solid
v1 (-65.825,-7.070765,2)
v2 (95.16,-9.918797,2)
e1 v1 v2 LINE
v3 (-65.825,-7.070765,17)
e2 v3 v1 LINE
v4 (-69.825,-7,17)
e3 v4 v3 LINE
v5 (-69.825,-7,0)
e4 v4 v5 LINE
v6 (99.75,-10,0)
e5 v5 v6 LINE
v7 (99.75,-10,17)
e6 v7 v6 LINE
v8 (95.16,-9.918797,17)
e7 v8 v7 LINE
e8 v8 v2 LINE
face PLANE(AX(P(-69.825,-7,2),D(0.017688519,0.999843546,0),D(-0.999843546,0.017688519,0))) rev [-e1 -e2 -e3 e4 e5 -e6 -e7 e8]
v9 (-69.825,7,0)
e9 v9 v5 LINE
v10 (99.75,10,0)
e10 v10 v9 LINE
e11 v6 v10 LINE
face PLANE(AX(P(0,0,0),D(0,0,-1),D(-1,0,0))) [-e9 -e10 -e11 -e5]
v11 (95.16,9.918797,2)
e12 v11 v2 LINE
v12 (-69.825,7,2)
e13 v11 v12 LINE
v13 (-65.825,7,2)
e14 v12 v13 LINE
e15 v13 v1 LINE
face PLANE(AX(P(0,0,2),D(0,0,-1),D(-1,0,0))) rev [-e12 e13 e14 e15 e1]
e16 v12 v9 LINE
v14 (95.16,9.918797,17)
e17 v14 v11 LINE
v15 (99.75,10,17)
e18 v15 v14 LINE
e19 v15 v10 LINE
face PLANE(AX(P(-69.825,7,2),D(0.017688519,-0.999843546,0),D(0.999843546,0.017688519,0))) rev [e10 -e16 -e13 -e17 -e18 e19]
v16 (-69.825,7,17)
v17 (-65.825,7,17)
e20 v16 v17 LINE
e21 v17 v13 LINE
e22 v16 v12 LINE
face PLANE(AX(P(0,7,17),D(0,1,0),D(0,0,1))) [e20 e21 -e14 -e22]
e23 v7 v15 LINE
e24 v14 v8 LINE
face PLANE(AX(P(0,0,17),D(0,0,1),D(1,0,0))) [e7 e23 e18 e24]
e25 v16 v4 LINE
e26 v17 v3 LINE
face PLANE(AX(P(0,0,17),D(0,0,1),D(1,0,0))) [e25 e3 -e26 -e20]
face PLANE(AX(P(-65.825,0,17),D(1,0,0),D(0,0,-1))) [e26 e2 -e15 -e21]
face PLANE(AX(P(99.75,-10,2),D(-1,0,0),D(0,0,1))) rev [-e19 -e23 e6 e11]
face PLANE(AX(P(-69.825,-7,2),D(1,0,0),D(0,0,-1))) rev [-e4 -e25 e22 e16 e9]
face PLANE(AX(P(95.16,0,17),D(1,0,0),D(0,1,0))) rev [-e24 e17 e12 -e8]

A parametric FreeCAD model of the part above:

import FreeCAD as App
import Part
import Sketcher
from FreeCAD import Vector


def add_polygon(sketch, points):
    """Adds a closed chain of lines whose ends are joined by coincident constraints."""
    first, n = sketch.GeometryCount, len(points)
    for a, b in zip(points, points[1:] + points[:1]):
        sketch.addGeometry(Part.LineSegment(App.Vector(*a, 0), App.Vector(*b, 0)), False)
    for i in range(n):
        sketch.addConstraint(Sketcher.Constraint("Coincident", first + i, 2, first + (i + 1) % n, 1))

doc = App.newDocument("Part")
params = doc.addObject("Spreadsheet::Sheet", "Params")
for row, (alias, value) in enumerate([
    ("sketch1_height", "20 mm"),
    ("sketch1_height2", "14 mm"),
    ("pad1_length", "2 mm"),
    ("sketch2_width", "4 mm"),
    ("sketch2_height", "14 mm"),
    ("sketch2_height2", "20 mm"),
    ("pad2_length", "15 mm"),
], start=1):
    params.set(f"A{row}", alias)
    params.set(f"B{row}", "=" + value)
    params.setAlias(f"B{row}", alias)

body = doc.addObject("PartDesign::Body", "Body")

# Sketch on XY plane
sketch1 = doc.addObject("Sketcher::SketchObject", "Sketch")
body.addObject(sketch1)
sketch1.AttachmentSupport = (doc.XY_Plane, [""])
sketch1.MapMode = "FlatFace"
add_polygon(sketch1, [(-70, -7), (100, -10), (100, 10), (-70, 7)])  # lines 0-3
sketch1.addConstraint([
    Sketcher.Constraint("Vertical", 1),
    Sketcher.Constraint("Vertical", 3),
    Sketcher.Constraint("Equal", 0, 2),
    Sketcher.Constraint("DistanceY", 1, 1, 1, 2, 20.0),
    Sketcher.Constraint("DistanceY", 3, 2, 3, 1, 14.0),
    Sketcher.Constraint("DistanceY", 0, 2, -1, 1, 10.0),
    Sketcher.Constraint("DistanceX", -1, 1, 0, 2, 99.75),
    Sketcher.Constraint("DistanceX", 2, 2, -1, 1, 69.825),
])
sketch1.setExpression("Constraints[7]", "Params.sketch1_height")
sketch1.setExpression("Constraints[8]", "Params.sketch1_height2")
pad1 = doc.addObject("PartDesign::Pad", "Pad")
body.addObject(pad1)
pad1.Profile = sketch1
pad1.setExpression("Length", "Params.pad1_length")

# Sketch on XY plane
sketch2 = doc.addObject("Sketcher::SketchObject", "Sketch001")
body.addObject(sketch2)
sketch2.AttachmentSupport = (doc.XY_Plane, [""])
sketch2.MapMode = "FlatFace"
sketch2.AttachmentOffset = App.Placement(Vector(0, 0, 2), App.Rotation())
add_polygon(sketch2, [(-65.8, 7), (-69.8, 7), (-69.8, -7), (-65.8, -7.1)])  # lines 0-3
add_polygon(sketch2, [(99.8, 10), (95.2, 9.9), (95.2, -9.9), (99.8, -10)])  # lines 4-7
sketch2.addConstraint([
    Sketcher.Constraint("Horizontal", 0),
    Sketcher.Constraint("Vertical", 1),
    Sketcher.Constraint("Vertical", 3),
    Sketcher.Constraint("Vertical", 5),
    Sketcher.Constraint("Vertical", 7),
    Sketcher.Constraint("Parallel", 2, 6),
    Sketcher.Constraint("Equal", 4, 6),
    Sketcher.Constraint("DistanceX", 0, 2, 0, 1, 4.0),
    Sketcher.Constraint("DistanceY", 1, 2, 1, 1, 14.0),
    Sketcher.Constraint("DistanceY", 7, 1, 7, 2, 20.0),
    Sketcher.Constraint("DistanceY", -1, 1, 0, 2, 7.0),
    Sketcher.Constraint("DistanceY", 6, 2, -1, 1, 10.0),
    Sketcher.Constraint("DistanceX", -1, 1, 4, 2, 95.16),
    Sketcher.Constraint("DistanceX", -1, 1, 6, 2, 99.75),
    Sketcher.Constraint("DistanceX", 0, 2, -1, 1, 69.825),
    Sketcher.Constraint("Distance", 4, 4.590718),
])
sketch2.setExpression("Constraints[15]", "Params.sketch2_width")
sketch2.setExpression("Constraints[16]", "Params.sketch2_height")
sketch2.setExpression("Constraints[17]", "Params.sketch2_height2")
pad2 = doc.addObject("PartDesign::Pad", "Pad001")
body.addObject(pad2)
pad2.Profile = sketch2
pad2.setExpression("Length", "Params.pad2_length")

doc.recompute()
